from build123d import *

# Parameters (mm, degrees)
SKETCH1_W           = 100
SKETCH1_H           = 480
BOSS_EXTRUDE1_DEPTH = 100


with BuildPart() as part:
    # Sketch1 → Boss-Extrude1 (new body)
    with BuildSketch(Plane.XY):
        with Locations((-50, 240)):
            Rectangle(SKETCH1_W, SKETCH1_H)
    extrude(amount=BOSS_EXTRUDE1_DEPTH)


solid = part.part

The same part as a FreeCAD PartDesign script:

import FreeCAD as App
import Part
import Sketcher

V = App.Vector
Q = App.Units.Quantity

doc = App.newDocument("Part")
body = doc.addObject("PartDesign::Body", "Body")

# Sketch on XY plane
sketch1 = body.newObject("Sketcher::SketchObject", "Sketch")
sketch1.AttachmentSupport = (doc.getObject("XY_Plane"), [""])
sketch1.MapMode = "FlatFace"
sketch1.addGeometry([
    Part.LineSegment(V(-100, 480, 0), V(-100, 0, 0)),
    Part.LineSegment(V(-100, 0, 0), V(0, 0, 0)),
    Part.LineSegment(V(0, 0, 0), V(0, 480, 0)),
    Part.LineSegment(V(0, 480, 0), V(-100, 480, 0)),
], False)
sketch1.addConstraint([
    Sketcher.Constraint("Coincident", 0, 2, 1, 1),
    Sketcher.Constraint("Coincident", 1, 2, 2, 1),
    Sketcher.Constraint("Coincident", 2, 2, 3, 1),
    Sketcher.Constraint("Coincident", 3, 2, 0, 1),
    Sketcher.Constraint("Vertical", 0),
    Sketcher.Constraint("Horizontal", 1),
    Sketcher.Constraint("Vertical", 2),
    Sketcher.Constraint("Horizontal", 3),
    Sketcher.Constraint("Coincident", 1, 2, -1, 1),
    Sketcher.Constraint("DistanceX", 1, 1, 1, 2, Q("100 mm")),
    Sketcher.Constraint("DistanceY", 0, 2, 0, 1, Q("480 mm")),
])
pad1 = body.newObject("PartDesign::Pad", "Pad")
pad1.Profile = sketch1
pad1.Length = 100

doc.recompute()
